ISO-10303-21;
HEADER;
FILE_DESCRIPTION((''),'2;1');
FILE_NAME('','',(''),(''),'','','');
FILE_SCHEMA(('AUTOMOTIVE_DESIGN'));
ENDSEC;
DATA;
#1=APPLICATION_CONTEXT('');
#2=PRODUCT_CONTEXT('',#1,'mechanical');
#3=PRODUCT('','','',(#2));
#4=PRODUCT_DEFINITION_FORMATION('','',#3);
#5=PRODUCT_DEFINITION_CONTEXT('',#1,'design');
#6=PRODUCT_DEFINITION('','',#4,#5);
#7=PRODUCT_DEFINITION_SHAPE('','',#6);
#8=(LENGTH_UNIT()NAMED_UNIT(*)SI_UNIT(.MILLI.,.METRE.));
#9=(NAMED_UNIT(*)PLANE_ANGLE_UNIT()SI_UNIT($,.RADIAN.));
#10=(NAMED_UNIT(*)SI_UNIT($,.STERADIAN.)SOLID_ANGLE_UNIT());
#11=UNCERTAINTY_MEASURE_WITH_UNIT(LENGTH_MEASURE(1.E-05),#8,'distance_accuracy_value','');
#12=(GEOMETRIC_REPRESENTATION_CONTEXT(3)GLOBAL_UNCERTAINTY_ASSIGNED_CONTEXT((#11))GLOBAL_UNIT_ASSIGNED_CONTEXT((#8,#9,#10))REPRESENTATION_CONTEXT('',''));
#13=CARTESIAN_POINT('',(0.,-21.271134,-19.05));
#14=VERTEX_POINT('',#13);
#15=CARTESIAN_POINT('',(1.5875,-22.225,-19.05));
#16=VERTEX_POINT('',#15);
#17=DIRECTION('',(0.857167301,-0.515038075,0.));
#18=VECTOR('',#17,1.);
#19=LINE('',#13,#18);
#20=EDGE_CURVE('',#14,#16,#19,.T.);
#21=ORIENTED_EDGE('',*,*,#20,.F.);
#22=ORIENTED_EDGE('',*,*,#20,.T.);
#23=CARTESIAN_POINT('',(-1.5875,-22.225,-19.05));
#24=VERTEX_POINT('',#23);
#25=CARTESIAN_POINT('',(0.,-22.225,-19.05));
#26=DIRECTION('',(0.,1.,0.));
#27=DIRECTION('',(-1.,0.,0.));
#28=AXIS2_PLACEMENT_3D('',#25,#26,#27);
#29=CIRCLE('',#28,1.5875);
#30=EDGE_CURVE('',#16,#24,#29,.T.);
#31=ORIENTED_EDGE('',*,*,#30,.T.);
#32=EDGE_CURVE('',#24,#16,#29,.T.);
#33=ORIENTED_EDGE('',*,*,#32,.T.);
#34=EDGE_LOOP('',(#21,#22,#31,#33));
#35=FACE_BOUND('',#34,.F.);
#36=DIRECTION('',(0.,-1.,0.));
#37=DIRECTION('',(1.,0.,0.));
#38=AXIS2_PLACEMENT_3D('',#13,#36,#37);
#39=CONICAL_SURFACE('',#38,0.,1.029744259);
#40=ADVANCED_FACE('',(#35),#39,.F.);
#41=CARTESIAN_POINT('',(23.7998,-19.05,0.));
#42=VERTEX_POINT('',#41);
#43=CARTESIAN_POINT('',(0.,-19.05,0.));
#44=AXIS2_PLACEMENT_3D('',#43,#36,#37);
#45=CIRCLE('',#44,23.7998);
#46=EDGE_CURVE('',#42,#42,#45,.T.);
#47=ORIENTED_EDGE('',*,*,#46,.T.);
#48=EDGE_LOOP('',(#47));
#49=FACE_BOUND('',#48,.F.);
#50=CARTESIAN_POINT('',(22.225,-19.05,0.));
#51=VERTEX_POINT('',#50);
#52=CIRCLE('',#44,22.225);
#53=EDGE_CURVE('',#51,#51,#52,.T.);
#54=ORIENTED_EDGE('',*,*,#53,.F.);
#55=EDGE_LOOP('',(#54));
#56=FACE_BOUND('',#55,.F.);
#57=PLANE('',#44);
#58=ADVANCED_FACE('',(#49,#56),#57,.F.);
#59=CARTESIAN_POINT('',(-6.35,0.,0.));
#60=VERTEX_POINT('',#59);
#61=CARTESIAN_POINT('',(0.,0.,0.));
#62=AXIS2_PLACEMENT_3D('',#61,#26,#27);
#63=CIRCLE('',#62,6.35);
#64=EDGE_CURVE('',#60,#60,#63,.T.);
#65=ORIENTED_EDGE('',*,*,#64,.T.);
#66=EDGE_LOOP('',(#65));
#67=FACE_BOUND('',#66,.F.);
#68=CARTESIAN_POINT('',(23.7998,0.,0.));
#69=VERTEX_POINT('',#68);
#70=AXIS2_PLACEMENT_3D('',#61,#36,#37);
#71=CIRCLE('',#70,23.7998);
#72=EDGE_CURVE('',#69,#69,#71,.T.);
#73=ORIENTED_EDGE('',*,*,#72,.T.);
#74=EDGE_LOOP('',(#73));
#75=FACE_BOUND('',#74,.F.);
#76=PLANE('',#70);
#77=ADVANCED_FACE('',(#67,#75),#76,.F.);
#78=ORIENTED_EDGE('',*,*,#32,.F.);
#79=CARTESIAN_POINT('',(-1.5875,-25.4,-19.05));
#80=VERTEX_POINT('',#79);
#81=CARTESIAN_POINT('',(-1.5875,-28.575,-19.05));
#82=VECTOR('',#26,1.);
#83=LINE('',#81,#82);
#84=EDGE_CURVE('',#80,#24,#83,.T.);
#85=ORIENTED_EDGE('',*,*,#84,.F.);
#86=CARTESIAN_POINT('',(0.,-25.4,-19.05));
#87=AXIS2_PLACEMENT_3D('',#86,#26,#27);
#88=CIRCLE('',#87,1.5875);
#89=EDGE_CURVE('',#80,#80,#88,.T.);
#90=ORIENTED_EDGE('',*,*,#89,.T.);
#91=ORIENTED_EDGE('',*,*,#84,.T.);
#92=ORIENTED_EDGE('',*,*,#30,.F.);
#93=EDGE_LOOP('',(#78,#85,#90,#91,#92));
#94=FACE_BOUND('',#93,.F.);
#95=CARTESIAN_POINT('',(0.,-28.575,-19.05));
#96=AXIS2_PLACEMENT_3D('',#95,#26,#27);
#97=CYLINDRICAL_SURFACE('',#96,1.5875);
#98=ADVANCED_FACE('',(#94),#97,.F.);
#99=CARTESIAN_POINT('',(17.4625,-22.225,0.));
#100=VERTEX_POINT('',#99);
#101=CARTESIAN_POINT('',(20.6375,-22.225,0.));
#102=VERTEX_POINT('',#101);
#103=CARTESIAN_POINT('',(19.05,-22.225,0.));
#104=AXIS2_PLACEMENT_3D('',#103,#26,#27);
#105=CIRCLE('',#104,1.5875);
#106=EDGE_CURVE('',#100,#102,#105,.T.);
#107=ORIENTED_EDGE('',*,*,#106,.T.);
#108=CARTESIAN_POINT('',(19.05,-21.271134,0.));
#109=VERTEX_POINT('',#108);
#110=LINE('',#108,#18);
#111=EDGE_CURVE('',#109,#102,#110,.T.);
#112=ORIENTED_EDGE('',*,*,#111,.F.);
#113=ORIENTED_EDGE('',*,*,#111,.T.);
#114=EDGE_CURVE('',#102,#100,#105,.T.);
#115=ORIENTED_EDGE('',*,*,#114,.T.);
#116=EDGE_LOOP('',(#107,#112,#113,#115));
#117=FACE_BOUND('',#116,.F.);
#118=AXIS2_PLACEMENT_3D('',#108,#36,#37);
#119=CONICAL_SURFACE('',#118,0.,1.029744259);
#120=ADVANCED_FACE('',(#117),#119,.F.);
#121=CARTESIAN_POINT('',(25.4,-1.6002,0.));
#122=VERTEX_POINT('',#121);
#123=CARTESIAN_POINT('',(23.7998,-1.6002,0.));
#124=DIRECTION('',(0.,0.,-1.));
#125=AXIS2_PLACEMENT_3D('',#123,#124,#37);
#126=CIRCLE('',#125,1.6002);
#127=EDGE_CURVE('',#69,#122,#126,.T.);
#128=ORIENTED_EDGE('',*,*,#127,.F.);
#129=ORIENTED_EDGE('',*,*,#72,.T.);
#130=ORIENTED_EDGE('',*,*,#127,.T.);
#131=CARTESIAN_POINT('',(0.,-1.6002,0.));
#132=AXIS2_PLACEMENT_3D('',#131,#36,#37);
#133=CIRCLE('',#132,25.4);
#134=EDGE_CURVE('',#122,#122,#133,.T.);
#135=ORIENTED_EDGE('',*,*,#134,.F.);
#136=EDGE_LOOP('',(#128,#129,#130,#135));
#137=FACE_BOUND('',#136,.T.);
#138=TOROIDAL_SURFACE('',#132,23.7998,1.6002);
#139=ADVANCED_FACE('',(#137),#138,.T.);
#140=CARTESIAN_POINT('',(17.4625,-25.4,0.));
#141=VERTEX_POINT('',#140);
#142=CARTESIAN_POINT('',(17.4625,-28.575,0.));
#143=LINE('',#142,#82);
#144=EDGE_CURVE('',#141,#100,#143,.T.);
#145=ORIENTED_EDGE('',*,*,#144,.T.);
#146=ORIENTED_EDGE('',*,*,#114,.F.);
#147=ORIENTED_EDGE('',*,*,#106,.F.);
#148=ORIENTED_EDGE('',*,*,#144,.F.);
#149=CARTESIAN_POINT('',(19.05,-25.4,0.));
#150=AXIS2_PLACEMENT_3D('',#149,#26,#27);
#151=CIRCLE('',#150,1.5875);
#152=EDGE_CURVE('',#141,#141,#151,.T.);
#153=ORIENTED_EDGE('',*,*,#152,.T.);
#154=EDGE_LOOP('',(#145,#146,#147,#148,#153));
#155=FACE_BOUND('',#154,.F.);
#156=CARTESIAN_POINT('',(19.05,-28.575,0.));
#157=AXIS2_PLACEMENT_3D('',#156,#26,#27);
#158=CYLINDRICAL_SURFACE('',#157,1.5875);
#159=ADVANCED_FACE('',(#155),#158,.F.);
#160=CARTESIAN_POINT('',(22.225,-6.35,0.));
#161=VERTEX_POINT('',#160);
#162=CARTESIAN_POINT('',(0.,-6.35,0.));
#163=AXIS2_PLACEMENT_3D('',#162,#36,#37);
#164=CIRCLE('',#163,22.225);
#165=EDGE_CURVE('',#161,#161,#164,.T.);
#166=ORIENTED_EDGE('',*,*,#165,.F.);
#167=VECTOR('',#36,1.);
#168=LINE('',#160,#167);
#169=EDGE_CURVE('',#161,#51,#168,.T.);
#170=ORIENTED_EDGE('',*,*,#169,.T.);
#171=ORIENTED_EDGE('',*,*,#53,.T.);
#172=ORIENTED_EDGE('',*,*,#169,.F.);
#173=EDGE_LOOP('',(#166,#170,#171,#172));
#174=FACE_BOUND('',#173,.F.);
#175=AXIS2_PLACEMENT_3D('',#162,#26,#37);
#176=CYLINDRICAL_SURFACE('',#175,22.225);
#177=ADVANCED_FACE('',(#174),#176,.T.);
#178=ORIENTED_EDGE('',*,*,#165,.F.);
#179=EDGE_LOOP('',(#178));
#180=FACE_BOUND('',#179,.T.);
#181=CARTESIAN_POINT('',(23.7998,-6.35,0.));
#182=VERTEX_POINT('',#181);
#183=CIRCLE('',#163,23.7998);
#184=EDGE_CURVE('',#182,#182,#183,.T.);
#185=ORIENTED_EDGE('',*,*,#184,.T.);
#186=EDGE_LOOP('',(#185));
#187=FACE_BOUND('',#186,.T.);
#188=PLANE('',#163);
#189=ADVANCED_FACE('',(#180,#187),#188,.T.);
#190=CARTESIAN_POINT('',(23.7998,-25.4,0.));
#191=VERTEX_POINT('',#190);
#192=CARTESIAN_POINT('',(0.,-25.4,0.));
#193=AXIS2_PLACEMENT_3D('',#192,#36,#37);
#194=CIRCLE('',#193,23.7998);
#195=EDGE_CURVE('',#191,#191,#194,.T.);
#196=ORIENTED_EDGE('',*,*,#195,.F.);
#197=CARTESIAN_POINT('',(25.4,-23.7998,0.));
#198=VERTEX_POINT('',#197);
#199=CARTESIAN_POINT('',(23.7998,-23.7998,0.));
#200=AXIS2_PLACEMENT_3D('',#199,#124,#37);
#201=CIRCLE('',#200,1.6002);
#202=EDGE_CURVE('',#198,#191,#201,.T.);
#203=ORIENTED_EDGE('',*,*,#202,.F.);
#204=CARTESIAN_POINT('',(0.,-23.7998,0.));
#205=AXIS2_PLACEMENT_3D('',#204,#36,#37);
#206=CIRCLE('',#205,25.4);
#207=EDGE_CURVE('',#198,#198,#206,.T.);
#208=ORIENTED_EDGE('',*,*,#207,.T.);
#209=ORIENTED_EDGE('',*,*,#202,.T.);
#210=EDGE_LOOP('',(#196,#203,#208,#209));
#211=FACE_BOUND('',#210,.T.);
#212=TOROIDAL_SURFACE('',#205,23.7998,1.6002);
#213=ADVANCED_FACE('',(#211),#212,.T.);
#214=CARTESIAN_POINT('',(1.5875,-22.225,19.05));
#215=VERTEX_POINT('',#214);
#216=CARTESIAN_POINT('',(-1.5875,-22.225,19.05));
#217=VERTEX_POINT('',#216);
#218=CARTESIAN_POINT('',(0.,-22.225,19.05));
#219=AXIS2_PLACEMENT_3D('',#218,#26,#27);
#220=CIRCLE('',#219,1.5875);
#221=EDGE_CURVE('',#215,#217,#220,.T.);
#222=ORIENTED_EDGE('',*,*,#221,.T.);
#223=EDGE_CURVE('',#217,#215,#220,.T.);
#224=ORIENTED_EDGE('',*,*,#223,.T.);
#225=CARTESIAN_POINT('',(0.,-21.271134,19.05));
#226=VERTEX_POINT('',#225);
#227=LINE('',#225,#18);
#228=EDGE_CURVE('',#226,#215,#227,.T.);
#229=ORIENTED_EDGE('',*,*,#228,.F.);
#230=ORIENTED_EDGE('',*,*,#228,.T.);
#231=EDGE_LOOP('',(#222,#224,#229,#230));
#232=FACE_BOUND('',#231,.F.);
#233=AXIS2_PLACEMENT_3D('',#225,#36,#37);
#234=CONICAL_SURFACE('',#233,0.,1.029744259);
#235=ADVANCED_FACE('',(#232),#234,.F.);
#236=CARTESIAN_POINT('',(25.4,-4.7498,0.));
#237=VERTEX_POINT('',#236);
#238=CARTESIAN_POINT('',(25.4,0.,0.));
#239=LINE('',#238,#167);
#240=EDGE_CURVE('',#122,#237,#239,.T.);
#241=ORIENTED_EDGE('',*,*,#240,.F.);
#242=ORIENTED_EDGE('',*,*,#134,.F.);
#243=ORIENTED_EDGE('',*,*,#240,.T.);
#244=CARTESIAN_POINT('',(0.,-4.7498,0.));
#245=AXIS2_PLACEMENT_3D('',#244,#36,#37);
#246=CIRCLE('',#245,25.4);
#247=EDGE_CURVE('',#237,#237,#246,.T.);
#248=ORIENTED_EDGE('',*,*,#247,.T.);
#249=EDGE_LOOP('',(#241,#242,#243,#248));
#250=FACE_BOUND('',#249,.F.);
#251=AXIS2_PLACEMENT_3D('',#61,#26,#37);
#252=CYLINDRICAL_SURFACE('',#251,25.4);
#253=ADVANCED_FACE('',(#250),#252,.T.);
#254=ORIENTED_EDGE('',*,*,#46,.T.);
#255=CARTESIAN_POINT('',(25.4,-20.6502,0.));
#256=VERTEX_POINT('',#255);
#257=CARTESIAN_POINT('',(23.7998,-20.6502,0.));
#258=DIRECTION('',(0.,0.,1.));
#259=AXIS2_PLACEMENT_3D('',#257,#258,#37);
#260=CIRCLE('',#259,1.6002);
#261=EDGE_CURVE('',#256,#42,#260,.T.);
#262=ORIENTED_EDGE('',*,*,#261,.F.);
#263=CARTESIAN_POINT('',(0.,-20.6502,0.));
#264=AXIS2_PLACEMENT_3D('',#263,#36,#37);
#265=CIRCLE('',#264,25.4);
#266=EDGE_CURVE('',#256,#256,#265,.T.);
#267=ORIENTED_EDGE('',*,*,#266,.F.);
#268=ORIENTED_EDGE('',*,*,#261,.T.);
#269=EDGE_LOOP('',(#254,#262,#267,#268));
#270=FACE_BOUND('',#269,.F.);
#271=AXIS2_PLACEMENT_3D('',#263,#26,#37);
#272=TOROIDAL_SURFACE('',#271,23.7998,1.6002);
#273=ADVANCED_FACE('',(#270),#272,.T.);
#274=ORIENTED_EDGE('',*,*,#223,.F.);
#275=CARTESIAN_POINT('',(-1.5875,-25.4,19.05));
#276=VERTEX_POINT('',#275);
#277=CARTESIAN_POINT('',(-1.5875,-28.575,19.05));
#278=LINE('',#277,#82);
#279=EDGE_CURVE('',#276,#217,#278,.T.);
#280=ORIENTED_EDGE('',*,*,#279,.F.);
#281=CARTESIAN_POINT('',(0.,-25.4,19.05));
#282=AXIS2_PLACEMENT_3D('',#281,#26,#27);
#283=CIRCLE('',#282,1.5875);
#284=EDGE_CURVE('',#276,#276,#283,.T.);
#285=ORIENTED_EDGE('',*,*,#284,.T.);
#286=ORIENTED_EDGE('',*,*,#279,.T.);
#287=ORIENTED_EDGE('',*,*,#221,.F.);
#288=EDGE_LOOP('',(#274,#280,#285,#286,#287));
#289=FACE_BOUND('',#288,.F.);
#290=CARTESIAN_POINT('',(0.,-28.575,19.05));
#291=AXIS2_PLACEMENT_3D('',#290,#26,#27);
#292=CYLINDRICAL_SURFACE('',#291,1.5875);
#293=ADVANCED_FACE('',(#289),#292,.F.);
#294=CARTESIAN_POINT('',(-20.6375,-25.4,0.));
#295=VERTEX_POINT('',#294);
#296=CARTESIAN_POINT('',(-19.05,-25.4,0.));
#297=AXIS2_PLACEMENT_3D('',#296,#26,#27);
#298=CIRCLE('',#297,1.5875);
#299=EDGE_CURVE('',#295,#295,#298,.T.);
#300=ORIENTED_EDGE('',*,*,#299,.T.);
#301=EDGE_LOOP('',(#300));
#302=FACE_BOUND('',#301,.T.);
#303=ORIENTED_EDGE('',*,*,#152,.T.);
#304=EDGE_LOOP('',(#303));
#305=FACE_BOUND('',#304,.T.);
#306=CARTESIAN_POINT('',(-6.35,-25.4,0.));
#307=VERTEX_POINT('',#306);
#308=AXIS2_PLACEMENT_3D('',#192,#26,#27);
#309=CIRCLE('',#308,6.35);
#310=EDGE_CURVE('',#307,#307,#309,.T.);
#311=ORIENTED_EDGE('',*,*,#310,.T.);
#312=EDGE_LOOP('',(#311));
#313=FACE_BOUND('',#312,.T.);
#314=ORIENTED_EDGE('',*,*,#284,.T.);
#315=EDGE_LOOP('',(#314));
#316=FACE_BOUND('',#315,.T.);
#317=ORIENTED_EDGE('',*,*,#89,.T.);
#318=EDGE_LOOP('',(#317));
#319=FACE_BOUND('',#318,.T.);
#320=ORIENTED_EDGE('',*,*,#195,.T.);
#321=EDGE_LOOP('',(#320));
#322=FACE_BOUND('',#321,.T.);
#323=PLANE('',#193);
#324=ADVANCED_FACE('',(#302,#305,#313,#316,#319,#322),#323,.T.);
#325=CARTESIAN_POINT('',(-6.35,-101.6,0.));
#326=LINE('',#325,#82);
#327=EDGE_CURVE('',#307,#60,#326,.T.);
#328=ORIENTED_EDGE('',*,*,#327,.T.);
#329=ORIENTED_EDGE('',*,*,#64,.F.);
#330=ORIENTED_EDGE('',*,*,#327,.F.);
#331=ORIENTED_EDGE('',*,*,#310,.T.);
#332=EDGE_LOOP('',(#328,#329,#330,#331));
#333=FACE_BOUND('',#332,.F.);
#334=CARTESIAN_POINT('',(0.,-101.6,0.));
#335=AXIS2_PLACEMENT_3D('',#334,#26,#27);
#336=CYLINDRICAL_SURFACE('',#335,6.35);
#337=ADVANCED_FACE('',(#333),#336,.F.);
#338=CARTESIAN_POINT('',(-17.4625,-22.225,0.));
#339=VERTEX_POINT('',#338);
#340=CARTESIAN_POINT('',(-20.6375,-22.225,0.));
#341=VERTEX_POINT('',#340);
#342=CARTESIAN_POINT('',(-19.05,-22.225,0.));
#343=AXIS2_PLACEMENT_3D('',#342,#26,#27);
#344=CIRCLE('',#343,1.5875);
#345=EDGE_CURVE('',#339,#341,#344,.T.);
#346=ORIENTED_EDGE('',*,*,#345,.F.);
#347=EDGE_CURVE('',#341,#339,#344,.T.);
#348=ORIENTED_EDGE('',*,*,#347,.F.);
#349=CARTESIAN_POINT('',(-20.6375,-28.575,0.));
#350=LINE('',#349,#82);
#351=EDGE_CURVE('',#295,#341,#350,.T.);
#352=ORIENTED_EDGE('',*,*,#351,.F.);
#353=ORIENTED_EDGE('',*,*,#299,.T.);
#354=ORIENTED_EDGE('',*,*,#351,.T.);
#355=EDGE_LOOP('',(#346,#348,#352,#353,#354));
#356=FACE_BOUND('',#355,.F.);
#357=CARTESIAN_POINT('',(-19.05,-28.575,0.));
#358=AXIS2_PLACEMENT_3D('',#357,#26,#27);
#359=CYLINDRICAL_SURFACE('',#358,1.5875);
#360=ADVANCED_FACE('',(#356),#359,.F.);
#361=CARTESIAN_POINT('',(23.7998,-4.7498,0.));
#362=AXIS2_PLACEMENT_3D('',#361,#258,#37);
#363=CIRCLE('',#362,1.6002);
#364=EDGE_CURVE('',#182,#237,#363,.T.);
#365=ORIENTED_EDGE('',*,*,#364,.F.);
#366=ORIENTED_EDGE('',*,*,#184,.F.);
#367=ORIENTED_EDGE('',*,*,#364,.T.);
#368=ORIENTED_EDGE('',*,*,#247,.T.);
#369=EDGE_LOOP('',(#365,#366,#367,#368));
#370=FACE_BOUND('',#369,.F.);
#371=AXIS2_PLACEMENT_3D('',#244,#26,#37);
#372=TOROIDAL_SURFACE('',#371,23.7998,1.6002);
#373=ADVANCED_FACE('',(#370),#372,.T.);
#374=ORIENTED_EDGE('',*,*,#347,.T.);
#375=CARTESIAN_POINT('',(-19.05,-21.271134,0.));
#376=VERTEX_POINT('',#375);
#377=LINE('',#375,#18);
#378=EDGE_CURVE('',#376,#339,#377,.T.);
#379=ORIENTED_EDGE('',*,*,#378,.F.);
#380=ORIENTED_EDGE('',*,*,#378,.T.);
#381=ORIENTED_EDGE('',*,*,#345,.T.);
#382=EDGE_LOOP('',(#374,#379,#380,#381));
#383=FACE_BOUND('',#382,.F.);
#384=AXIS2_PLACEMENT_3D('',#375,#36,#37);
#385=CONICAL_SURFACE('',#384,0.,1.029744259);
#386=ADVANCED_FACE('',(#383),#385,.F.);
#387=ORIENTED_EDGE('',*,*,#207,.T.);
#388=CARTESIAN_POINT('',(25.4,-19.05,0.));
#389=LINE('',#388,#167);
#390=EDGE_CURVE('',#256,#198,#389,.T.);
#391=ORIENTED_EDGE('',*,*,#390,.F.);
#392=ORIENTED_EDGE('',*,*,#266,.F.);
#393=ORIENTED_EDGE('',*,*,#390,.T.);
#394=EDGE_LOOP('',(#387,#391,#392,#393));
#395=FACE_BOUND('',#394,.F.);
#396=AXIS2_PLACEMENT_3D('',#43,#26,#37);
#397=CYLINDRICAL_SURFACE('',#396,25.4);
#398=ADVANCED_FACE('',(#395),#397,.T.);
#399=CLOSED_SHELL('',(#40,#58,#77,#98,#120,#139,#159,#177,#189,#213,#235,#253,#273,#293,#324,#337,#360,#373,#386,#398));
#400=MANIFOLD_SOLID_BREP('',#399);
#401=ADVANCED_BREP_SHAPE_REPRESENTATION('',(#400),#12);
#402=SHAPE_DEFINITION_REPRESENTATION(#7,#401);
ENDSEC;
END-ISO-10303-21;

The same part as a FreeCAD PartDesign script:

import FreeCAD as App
import Part
import Sketcher
from FreeCAD import Vector
Q = App.Units.Quantity


def edges_at(feature, points):
    """Names of the edges that pass closest to the given points."""
    edges = feature.Shape.Edges
    near = lambda p: min(range(len(edges)), key=lambda i: edges[i].distToShape(Part.Vertex(*p))[0])
    return sorted({f"Edge{near(p) + 1}" for p in points})

doc = App.newDocument("Part")
body = doc.addObject("PartDesign::Body", "Body")

sketch1 = doc.addObject("Sketcher::SketchObject", "Sketch")
body.addObject(sketch1)
sketch1.AttachmentSupport = (doc.XZ_Plane, [""])
sketch1.MapMode = "FlatFace"
sketch1.addGeometry(Part.Circle(Vector(0, 0, 0), Vector(0, 0, 1), 25), False)
sketch1.addConstraint(Sketcher.Constraint("Coincident", 0, 3, -1, 1))
sketch1.addConstraint(Sketcher.Constraint("Diameter", 0, Q("2 in")))
pad1 = doc.addObject("PartDesign::Pad", "Pad")
body.addObject(pad1)
pad1.Profile = sketch1
pad1.Length = Q("0.25 in")

sketch2 = doc.addObject("Sketcher::SketchObject", "Sketch001")
body.addObject(sketch2)
sketch2.AttachmentSupport = (doc.XZ_Plane, [""])
sketch2.MapMode = "FlatFace"
sketch2.AttachmentOffset = App.Placement(Vector(0, 0, 0.25 * 25.4), App.Rotation())
sketch2.addGeometry(Part.Circle(Vector(0, 0, 0), Vector(0, 0, 1), 22), False)
sketch2.addConstraint(Sketcher.Constraint("Coincident", 0, 3, -1, 1))
sketch2.addConstraint(Sketcher.Constraint("Diameter", 0, Q("1.75 in")))
pad2 = doc.addObject("PartDesign::Pad", "Pad001")
body.addObject(pad2)
pad2.Profile = sketch2
pad2.Length = Q("0.5 in")

sketch3 = doc.addObject("Sketcher::SketchObject", "Sketch002")
body.addObject(sketch3)
sketch3.AttachmentSupport = (doc.XZ_Plane, [""])
sketch3.MapMode = "FlatFace"
sketch3.AttachmentOffset = App.Placement(Vector(0, 0, 0.75 * 25.4), App.Rotation())
sketch3.addGeometry(Part.Circle(Vector(0, 0, 0), Vector(0, 0, 1), 25), False)
sketch3.addConstraint(Sketcher.Constraint("Coincident", 0, 3, -1, 1))
sketch3.addConstraint(Sketcher.Constraint("Diameter", 0, Q("2 in")))
pad3 = doc.addObject("PartDesign::Pad", "Pad002")
body.addObject(pad3)
pad3.Profile = sketch3
pad3.Length = Q("0.25 in")

sketch4 = doc.addObject("Sketcher::SketchObject", "Sketch003")
body.addObject(sketch4)
sketch4.AttachmentSupport = (doc.XZ_Plane, [""])
sketch4.MapMode = "FlatFace"
sketch4.AttachmentOffset = App.Placement(Vector(0, 0, 1 * 25.4), App.Rotation())
sketch4.addGeometry(Part.Circle(Vector(0, 0, 0), Vector(0, 0, 1), 6), False)
sketch4.addConstraint(Sketcher.Constraint("Coincident", 0, 3, -1, 1))
sketch4.addConstraint(Sketcher.Constraint("Diameter", 0, Q("0.5 in")))
doc.recompute()
hole = doc.addObject("PartDesign::Hole", "Hole")
body.addObject(hole)
hole.Profile = sketch4
hole.ThreadType = "None"
hole.Diameter = Q("0.5 in")
hole.DepthType = "ThroughAll"

sketch5 = doc.addObject("Sketcher::SketchObject", "Sketch004")
body.addObject(sketch5)
sketch5.AttachmentSupport = (doc.XZ_Plane, [""])
sketch5.MapMode = "FlatFace"
sketch5.AttachmentOffset = App.Placement(Vector(0, 0, 1 * 25.4), App.Rotation())
sketch5.addGeometry(Part.Circle(Vector(0, 19.1, 0), Vector(0, 0, 1), 1.6), False)
sketch5.addGeometry(Part.Circle(Vector(19.1, 0, 0), Vector(0, 0, 1), 1.6), False)
sketch5.addGeometry(Part.Circle(Vector(0, -19.1, 0), Vector(0, 0, 1), 1.6), False)
sketch5.addGeometry(Part.Circle(Vector(-19.1, 0, 0), Vector(0, 0, 1), 1.6), False)
sketch5.addConstraint(Sketcher.Constraint("Equal", 0, 1))
sketch5.addConstraint(Sketcher.Constraint("Equal", 1, 2))
sketch5.addConstraint(Sketcher.Constraint("Equal", 2, 3))
sketch5.addConstraint(Sketcher.Constraint("Symmetric", 0, 3, 2, 3, -1, 1))
sketch5.addConstraint(Sketcher.Constraint("Symmetric", 1, 3, 3, 3, -1, 1))
sketch5.addConstraint(Sketcher.Constraint("PointOnObject", 0, 3, -2))
sketch5.addConstraint(Sketcher.Constraint("PointOnObject", 1, 3, -1))
sketch5.addConstraint(Sketcher.Constraint("Diameter", 0, Q("0.125 in")))
sketch5.addConstraint(Sketcher.Constraint("DistanceY", 2, 3, 0, 3, Q("1.5 in")))
sketch5.addConstraint(Sketcher.Constraint("DistanceX", 3, 3, 1, 3, Q("1.5 in")))
doc.recompute()
hole2 = doc.addObject("PartDesign::Hole", "Hole001")
body.addObject(hole2)
hole2.Profile = sketch5
hole2.ThreadType = "None"
hole2.Diameter = Q("0.125 in")
hole2.DepthType = "Dimension"
hole2.Depth = Q("0.125 in")
hole2.DrillPoint = "Angled"
hole2.DrillPointAngle = 118
doc.recompute()

fillet = doc.addObject("PartDesign::Fillet", "Fillet")
body.addObject(fillet)
fillet.Base = (hole2, edges_at(hole2, [
    (-25.4, -25.4, 0),
    (-25.4, -19.05, 0),
    (-25.4, -6.35, 0),
    (-25.4, 0, 0),
]))
fillet.Radius = Q("0.063 in")

doc.recompute()
